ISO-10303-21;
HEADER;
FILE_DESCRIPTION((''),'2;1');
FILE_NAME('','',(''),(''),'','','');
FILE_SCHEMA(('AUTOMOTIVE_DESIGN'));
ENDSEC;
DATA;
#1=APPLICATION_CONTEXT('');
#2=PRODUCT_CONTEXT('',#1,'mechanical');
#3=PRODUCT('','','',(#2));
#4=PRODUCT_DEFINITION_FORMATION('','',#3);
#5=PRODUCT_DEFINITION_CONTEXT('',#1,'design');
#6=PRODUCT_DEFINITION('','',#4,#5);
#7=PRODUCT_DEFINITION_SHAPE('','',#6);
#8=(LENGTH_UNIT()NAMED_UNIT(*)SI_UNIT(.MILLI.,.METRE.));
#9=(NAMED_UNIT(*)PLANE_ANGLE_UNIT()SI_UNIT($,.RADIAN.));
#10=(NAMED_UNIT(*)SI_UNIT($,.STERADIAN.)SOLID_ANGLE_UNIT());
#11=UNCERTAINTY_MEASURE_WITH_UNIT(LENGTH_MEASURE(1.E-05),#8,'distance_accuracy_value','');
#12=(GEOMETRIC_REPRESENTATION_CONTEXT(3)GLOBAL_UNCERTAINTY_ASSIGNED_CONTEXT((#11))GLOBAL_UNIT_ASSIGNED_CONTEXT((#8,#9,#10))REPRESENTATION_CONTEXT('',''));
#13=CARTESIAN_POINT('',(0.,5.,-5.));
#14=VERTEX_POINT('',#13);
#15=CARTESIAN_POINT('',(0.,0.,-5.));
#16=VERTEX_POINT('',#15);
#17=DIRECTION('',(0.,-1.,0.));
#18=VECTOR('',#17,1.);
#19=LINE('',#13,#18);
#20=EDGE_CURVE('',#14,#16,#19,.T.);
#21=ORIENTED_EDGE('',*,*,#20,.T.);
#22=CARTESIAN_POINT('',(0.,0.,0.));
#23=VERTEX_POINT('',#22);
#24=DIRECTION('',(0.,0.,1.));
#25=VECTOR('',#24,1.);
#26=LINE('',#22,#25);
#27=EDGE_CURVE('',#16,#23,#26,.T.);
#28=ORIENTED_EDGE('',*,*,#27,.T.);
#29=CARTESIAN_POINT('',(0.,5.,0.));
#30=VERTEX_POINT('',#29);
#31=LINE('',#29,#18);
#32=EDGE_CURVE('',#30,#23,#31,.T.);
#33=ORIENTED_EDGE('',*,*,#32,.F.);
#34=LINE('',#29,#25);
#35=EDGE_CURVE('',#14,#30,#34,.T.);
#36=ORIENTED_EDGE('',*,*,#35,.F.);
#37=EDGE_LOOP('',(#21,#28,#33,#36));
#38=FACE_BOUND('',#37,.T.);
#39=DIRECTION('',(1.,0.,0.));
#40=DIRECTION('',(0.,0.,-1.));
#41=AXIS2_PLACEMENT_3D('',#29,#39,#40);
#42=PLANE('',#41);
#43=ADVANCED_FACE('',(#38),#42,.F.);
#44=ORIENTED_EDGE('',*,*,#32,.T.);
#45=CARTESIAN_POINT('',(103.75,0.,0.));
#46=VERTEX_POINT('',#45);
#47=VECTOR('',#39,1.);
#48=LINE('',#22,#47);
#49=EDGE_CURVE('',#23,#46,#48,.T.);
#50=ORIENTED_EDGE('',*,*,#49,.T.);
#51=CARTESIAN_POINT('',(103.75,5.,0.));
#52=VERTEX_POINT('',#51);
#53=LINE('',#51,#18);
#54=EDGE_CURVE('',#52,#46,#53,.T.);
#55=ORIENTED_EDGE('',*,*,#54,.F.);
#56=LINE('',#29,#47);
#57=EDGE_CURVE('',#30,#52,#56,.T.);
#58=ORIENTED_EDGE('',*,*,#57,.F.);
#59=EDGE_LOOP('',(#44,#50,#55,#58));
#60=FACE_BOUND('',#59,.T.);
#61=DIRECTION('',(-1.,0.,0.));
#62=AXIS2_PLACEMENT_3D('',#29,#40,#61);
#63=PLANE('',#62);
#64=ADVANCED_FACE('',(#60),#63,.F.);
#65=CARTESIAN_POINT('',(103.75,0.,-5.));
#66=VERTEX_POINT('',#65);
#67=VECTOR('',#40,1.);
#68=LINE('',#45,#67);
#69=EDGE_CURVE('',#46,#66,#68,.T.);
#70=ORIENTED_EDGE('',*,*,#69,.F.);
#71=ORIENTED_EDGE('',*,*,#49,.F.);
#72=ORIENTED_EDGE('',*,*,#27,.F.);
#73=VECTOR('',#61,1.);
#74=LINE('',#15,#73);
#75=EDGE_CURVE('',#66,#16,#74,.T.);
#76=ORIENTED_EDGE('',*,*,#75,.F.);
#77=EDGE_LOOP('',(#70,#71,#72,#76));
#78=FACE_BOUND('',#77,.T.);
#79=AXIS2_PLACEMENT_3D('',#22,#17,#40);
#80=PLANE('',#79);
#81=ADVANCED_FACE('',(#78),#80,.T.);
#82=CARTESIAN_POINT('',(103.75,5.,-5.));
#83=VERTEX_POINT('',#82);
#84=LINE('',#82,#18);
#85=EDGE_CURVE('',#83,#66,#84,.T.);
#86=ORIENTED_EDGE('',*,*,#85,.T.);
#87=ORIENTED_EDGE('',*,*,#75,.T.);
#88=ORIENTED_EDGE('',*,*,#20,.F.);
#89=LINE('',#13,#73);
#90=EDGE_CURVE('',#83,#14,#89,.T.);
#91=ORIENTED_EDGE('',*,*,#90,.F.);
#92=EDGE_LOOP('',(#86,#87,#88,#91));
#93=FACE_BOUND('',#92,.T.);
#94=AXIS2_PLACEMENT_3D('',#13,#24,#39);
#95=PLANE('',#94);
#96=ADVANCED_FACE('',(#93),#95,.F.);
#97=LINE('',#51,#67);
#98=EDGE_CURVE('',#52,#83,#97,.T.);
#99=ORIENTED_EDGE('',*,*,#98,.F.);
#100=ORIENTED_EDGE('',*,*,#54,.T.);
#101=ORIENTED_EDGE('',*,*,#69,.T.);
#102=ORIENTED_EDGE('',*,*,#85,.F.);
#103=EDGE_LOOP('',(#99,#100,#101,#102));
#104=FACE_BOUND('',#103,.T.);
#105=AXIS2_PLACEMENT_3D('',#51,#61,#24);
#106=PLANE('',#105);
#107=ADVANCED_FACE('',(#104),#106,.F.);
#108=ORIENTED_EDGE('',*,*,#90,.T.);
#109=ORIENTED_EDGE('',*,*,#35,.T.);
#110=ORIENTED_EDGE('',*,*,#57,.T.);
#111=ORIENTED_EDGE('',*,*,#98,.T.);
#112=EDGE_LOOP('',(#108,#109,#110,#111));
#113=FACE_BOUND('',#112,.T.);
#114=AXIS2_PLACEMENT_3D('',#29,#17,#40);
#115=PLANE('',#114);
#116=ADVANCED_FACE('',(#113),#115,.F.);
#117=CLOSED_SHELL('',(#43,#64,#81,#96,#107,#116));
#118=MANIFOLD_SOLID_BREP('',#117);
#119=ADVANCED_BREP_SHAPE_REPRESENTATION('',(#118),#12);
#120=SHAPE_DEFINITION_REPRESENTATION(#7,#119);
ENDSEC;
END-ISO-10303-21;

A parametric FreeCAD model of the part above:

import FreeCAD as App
import Part
import Sketcher
Q = App.Units.Quantity

doc = App.newDocument("Part")
body = doc.addObject("PartDesign::Body", "Body")

sketch1 = body.newObject("Sketcher::SketchObject", "Sketch")
sketch1.AttachmentSupport = (doc.getObject("XZ_Plane"), [""])
sketch1.MapMode = "FlatFace"
sketch1.addGeometry(Part.LineSegment(App.Vector(0, -5, 0), App.Vector(0, 0, 0)), False)
sketch1.addGeometry(Part.LineSegment(App.Vector(0, 0, 0), App.Vector(104, 0, 0)), False)
sketch1.addGeometry(Part.LineSegment(App.Vector(104, 0, 0), App.Vector(104, -5, 0)), False)
sketch1.addGeometry(Part.LineSegment(App.Vector(104, -5, 0), App.Vector(0, -5, 0)), False)
sketch1.addConstraint(Sketcher.Constraint("Coincident", 0, 2, 1, 1))
sketch1.addConstraint(Sketcher.Constraint("Coincident", 1, 2, 2, 1))
sketch1.addConstraint(Sketcher.Constraint("Coincident", 2, 2, 3, 1))
sketch1.addConstraint(Sketcher.Constraint("Coincident", 3, 2, 0, 1))
sketch1.addConstraint(Sketcher.Constraint("Vertical", 0))
sketch1.addConstraint(Sketcher.Constraint("Horizontal", 1))
sketch1.addConstraint(Sketcher.Constraint("Vertical", 2))
sketch1.addConstraint(Sketcher.Constraint("Horizontal", 3))
sketch1.addConstraint(Sketcher.Constraint("Coincident", 0, 2, -1, 1))
sketch1.addConstraint(Sketcher.Constraint("DistanceY", 0, 1, 0, 2, Q("5 mm")))
sketch1.addConstraint(Sketcher.Constraint("DistanceX", 1, 1, 1, 2, Q("103.75 mm")))
pad1 = body.newObject("PartDesign::Pad", "Pad")
pad1.Profile = sketch1
pad1.Length = 5
pad1.Reversed = True

doc.recompute()
